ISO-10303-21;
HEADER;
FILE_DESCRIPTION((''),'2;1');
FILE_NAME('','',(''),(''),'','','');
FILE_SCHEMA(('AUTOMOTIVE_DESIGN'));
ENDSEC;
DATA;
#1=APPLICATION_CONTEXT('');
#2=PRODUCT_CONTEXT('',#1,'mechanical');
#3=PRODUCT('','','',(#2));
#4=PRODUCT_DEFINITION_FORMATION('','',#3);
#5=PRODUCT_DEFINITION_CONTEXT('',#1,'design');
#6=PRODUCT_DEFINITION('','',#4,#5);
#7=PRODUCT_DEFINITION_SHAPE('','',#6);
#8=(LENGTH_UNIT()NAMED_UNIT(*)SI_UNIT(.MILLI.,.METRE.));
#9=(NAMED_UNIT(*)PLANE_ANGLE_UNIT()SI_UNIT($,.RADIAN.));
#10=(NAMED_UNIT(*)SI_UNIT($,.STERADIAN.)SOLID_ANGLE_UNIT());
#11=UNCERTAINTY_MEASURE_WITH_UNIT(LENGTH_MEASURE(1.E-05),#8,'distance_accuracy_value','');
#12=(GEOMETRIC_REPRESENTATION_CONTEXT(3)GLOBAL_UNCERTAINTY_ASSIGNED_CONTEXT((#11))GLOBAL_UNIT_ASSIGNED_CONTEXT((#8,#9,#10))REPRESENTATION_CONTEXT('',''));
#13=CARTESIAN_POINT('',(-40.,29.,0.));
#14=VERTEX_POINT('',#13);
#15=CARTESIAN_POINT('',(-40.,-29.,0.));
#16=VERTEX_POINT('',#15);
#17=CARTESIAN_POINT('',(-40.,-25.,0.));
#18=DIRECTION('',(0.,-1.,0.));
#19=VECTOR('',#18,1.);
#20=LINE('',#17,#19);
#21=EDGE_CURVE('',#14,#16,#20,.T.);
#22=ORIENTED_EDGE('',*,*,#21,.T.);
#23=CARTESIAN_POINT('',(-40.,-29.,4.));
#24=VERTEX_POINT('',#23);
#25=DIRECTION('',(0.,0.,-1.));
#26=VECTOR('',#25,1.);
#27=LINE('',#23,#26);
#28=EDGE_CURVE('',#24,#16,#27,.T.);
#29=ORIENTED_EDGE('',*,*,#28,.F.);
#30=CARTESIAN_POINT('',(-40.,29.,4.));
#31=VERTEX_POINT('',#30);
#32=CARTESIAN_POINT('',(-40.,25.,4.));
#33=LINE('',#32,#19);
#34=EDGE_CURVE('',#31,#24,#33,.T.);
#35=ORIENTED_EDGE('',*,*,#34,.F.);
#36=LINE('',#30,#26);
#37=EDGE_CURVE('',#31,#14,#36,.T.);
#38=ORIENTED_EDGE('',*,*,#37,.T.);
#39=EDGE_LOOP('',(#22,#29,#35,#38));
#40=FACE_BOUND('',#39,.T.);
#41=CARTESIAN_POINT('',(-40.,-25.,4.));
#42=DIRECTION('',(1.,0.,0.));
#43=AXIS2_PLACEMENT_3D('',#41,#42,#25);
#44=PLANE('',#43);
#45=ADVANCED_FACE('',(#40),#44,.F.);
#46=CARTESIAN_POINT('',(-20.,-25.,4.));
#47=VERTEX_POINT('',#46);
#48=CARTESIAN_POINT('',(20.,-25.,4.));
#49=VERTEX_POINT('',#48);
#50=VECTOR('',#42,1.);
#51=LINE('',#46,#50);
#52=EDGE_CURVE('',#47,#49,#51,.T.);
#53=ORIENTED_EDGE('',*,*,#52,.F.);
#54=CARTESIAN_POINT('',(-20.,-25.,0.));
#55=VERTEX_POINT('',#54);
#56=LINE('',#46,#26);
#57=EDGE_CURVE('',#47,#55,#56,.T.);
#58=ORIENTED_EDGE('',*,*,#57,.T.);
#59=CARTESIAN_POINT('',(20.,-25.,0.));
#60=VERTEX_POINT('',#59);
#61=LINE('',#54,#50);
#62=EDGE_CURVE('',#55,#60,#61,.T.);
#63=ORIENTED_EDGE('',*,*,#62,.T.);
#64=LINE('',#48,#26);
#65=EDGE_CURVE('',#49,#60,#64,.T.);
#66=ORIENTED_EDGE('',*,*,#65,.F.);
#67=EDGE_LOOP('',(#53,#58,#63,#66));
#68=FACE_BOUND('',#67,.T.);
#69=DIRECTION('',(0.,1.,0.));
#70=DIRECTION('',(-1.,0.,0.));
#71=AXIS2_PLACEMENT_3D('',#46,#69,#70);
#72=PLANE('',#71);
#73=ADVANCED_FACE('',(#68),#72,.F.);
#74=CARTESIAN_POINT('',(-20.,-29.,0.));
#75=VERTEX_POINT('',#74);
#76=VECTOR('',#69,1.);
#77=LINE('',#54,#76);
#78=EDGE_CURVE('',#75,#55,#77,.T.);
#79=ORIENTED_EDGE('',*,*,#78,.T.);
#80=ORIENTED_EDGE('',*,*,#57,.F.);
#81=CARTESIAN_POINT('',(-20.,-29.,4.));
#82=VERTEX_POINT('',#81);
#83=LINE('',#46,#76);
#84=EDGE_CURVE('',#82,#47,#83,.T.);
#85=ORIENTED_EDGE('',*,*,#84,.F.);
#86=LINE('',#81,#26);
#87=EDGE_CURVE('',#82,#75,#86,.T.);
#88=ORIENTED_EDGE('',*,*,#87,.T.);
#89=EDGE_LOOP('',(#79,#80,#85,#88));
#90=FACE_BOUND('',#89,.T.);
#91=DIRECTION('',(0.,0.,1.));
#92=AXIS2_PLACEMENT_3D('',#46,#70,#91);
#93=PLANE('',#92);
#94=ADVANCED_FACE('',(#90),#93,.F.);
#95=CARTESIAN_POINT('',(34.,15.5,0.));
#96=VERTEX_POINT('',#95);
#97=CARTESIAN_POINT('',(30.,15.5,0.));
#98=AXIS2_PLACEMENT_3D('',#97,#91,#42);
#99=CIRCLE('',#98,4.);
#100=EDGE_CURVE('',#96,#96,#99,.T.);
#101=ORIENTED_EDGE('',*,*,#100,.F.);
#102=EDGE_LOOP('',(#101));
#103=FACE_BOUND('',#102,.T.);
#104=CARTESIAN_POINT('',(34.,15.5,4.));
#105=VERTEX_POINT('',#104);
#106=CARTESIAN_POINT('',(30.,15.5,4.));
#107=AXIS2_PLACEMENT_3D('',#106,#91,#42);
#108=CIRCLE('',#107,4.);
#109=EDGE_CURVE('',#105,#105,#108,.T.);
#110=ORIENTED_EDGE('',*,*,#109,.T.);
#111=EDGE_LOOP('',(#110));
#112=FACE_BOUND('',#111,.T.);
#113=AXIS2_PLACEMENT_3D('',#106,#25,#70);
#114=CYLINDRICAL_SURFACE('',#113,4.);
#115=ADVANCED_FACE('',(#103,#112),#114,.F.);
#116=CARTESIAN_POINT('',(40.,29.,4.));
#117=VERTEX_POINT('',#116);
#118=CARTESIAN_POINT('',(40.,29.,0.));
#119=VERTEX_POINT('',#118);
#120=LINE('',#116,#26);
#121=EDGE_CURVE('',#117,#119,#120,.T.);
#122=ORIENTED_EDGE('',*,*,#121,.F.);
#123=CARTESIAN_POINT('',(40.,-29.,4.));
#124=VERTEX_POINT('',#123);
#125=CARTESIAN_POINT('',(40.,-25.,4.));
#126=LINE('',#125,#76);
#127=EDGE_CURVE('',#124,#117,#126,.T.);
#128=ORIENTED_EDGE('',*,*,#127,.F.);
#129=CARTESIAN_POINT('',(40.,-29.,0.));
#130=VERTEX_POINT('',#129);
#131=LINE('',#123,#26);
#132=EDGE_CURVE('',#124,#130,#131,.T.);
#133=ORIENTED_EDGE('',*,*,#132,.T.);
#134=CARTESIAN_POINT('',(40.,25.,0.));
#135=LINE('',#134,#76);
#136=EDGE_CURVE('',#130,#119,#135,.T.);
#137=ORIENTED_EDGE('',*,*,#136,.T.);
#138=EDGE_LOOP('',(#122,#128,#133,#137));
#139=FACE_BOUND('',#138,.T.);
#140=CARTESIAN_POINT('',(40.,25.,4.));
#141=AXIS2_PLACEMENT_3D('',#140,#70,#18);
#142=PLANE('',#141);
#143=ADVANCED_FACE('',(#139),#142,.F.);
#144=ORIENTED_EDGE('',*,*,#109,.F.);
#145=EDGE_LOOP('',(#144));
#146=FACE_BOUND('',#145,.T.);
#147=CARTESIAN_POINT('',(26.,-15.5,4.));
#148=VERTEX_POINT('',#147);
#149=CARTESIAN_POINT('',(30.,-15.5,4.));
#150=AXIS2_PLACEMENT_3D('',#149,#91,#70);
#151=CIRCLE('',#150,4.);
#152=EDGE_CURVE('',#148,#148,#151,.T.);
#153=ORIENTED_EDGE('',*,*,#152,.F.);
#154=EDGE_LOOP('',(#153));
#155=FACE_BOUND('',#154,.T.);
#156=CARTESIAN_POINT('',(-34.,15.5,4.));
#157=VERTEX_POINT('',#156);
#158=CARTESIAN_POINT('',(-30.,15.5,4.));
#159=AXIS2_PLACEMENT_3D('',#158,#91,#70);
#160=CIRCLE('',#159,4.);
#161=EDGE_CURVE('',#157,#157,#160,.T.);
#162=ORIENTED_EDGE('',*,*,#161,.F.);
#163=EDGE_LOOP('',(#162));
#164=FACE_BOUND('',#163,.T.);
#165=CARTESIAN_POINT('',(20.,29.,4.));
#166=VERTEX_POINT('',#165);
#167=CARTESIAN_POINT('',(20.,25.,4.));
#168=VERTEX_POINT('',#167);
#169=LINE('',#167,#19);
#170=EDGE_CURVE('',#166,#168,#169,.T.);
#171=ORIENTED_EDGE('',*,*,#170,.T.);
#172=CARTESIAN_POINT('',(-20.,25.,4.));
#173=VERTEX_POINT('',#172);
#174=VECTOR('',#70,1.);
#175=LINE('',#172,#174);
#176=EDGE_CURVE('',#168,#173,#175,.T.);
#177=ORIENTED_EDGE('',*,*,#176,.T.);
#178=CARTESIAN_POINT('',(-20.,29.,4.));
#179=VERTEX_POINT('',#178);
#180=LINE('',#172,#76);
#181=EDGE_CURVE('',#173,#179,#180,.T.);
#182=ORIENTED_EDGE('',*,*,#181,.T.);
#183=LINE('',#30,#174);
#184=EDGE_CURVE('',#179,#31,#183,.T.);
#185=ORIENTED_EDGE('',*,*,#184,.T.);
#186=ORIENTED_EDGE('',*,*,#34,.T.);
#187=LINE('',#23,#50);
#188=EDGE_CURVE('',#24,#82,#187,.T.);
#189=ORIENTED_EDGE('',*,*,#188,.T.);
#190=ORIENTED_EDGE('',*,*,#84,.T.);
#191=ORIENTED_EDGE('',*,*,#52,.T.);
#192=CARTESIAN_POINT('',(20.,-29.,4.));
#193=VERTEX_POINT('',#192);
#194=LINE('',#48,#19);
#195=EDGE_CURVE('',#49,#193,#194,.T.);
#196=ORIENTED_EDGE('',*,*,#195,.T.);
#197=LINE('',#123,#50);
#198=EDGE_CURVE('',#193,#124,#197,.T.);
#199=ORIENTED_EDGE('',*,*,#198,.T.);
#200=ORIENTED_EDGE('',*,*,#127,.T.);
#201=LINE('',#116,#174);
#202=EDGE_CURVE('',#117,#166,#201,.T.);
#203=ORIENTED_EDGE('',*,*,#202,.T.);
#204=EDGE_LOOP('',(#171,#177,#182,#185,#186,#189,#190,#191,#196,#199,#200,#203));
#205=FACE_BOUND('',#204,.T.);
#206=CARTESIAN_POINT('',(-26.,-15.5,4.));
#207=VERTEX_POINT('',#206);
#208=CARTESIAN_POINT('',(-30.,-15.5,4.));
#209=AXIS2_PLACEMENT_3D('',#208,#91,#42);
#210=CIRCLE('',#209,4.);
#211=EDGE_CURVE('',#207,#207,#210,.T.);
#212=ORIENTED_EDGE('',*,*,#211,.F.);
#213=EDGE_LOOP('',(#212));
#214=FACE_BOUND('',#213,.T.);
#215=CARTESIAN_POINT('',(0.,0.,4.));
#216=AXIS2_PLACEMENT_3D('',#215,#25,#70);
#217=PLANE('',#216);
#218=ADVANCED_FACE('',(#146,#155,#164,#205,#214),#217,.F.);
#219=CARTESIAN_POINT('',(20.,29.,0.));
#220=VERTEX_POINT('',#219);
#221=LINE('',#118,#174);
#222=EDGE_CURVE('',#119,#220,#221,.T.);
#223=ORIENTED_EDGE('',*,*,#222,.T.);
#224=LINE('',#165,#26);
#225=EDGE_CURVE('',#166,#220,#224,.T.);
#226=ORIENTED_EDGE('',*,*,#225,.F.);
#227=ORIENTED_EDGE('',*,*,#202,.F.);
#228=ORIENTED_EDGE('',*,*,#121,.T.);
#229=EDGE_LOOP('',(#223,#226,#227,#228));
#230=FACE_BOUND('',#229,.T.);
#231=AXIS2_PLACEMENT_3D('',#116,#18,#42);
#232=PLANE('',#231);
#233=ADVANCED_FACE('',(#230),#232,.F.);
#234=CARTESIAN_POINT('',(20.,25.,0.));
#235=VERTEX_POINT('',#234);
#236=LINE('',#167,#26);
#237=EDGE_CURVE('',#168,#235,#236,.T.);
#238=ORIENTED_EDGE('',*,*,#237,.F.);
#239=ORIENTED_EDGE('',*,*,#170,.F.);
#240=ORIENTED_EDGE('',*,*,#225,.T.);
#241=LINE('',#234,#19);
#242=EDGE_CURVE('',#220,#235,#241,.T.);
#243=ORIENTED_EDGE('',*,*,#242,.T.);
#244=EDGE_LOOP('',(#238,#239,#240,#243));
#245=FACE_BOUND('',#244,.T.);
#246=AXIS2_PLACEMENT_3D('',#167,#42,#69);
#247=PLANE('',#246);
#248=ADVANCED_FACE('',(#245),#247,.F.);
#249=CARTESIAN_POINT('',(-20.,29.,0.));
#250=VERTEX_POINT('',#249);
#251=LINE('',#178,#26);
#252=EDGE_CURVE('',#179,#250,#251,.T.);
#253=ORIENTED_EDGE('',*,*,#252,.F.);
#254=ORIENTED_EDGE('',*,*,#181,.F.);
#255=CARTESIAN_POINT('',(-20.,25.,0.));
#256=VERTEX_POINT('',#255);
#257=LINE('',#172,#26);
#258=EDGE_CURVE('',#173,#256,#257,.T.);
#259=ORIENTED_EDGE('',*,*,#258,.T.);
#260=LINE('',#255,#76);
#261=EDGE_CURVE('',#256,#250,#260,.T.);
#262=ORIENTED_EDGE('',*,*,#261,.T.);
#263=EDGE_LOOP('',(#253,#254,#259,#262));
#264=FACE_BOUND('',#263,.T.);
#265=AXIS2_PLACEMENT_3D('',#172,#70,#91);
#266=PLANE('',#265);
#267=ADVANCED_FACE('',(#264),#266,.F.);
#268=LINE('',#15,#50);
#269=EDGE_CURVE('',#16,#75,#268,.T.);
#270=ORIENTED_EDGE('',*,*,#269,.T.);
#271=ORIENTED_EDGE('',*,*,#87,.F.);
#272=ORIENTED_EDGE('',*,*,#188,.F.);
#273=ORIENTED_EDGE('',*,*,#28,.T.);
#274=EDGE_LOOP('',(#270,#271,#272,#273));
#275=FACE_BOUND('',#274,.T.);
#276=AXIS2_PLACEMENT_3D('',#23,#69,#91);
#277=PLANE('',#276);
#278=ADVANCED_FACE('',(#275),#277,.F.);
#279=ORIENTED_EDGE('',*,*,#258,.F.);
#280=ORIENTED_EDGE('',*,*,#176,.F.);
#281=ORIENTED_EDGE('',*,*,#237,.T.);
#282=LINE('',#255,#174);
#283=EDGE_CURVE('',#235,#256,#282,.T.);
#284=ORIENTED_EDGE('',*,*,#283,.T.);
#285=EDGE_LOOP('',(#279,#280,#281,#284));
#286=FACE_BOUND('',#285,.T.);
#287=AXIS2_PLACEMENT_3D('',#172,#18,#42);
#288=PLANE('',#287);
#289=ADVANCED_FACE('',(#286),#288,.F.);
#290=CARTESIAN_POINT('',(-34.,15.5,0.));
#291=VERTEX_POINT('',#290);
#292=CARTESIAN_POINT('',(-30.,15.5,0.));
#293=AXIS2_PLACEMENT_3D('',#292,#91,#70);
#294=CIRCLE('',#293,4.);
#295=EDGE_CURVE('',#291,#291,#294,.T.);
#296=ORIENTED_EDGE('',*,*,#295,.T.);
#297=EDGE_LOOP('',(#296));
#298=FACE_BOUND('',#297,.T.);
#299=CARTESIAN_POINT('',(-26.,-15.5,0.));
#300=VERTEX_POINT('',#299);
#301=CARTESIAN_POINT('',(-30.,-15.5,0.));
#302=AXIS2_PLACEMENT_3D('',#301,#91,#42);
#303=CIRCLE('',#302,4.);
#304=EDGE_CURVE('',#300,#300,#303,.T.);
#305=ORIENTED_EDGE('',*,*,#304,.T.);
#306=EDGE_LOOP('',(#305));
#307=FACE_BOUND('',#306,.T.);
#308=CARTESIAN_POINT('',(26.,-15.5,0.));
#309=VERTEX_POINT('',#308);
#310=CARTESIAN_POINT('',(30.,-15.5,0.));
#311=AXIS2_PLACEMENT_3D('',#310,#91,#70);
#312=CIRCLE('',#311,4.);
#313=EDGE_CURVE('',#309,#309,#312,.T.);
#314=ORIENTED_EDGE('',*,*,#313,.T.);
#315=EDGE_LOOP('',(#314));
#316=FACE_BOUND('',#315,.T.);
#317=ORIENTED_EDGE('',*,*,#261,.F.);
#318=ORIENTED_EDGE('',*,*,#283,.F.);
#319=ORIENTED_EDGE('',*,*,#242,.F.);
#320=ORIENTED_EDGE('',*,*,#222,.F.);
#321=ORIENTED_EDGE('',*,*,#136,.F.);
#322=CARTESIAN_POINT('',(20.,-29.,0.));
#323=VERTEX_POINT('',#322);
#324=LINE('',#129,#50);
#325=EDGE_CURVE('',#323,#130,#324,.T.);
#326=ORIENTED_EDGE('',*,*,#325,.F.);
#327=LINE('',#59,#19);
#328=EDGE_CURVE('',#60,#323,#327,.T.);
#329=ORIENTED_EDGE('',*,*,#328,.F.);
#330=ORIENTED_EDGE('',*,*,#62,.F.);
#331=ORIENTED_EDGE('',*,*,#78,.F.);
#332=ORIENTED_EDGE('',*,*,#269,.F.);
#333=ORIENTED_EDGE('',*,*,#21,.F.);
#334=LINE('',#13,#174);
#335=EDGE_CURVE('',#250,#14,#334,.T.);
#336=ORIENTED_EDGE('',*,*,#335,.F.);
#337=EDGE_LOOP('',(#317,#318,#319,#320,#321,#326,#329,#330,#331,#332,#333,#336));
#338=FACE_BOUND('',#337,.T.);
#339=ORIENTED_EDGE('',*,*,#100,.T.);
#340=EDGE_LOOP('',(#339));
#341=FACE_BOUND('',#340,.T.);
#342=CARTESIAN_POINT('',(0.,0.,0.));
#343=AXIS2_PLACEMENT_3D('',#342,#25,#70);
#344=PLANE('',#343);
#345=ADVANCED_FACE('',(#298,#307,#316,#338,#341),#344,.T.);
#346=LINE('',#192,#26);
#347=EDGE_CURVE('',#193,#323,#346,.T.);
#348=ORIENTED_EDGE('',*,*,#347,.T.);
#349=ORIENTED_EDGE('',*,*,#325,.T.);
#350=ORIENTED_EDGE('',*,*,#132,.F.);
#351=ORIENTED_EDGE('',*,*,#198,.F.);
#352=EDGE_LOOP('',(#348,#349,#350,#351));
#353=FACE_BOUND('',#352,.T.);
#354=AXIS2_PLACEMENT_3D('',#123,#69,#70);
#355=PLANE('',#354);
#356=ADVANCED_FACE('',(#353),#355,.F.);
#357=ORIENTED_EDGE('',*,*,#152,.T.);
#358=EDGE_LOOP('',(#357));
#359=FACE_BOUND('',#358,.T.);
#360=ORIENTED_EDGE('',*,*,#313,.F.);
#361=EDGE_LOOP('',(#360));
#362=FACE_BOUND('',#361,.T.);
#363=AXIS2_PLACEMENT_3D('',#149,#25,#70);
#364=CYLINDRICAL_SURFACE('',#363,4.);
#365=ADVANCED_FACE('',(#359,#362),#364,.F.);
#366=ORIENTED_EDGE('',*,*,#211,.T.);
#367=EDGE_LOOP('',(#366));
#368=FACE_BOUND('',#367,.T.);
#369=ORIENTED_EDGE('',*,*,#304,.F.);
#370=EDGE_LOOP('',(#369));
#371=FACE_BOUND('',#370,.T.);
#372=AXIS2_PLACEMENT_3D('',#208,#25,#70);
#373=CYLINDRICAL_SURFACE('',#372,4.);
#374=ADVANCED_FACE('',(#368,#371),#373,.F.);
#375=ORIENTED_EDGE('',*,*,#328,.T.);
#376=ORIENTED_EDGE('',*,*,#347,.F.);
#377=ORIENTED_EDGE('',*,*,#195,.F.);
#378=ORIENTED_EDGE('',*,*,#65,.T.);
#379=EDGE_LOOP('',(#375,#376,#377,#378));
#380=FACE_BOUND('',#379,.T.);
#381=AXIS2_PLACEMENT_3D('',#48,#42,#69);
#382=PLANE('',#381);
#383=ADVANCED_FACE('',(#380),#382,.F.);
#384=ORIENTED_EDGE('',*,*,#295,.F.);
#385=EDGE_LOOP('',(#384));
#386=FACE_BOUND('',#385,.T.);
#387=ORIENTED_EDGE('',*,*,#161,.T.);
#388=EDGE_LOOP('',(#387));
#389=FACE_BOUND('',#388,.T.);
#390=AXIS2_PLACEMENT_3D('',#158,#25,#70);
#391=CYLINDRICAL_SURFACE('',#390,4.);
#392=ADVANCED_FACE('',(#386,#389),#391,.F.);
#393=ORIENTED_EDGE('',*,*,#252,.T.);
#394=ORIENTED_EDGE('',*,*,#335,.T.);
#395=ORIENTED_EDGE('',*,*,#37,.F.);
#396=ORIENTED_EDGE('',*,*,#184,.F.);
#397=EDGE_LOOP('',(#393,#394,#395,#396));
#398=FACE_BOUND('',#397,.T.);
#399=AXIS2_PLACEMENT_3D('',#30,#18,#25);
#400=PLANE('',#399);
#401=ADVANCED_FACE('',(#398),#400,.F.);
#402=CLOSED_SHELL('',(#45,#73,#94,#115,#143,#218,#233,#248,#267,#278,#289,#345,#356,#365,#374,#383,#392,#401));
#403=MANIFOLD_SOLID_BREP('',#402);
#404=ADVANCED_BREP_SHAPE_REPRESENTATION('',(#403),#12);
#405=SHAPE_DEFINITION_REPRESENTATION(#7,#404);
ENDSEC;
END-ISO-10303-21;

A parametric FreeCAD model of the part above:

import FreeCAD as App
import Part
import Sketcher
from FreeCAD import Vector
Q = App.Units.Quantity


def add_polygon(sketch, points):
    """Adds a closed chain of lines whose ends are joined by coincident constraints."""
    first, n = sketch.GeometryCount, len(points)
    for a, b in zip(points, points[1:] + points[:1]):
        sketch.addGeometry(Part.LineSegment(App.Vector(*a, 0), App.Vector(*b, 0)), False)
    for i in range(n):
        sketch.addConstraint(Sketcher.Constraint("Coincident", first + i, 2, first + (i + 1) % n, 1))

doc = App.newDocument("Part")
params = doc.addObject("Spreadsheet::Sheet", "Params")
for row, (alias, value) in enumerate([
    ("sketch1_diameter", "8 mm"),
    ("sketch1_width", "40 mm"),
    ("sketch1_width2", "20 mm"),
    ("sketch1_height", "4 mm"),
    ("sketch1_height2", "58 mm"),
    ("pad1_length", "4 mm"),
], start=1):
    params.set(f"A{row}", alias)
    params.set(f"B{row}", "=" + value)
    params.setAlias(f"B{row}", alias)

body = doc.addObject("PartDesign::Body", "Body")

# Sketch on XY plane
sketch1 = doc.addObject("Sketcher::SketchObject", "Sketch")
body.addObject(sketch1)
sketch1.AttachmentSupport = (doc.XY_Plane, [""])
sketch1.MapMode = "FlatFace"
add_polygon(sketch1, [(20, 25), (-20, 25), (-20, 29), (-40, 29), (-40, -29), (-20, -29), (-20, -25), (20, -25), (20, -29), (40, -29), (40, 29), (20, 29)])  # lines 0-11
sketch1.addGeometry(Part.Circle(Vector(30, -15.5, 0), Vector(0, 0, 1), 4), False)  # 12
sketch1.addGeometry(Part.Circle(Vector(-30, -15.5, 0), Vector(0, 0, 1), 4), False)  # 13
sketch1.addGeometry(Part.Circle(Vector(30, 15.5, 0), Vector(0, 0, 1), 4), False)  # 14
sketch1.addGeometry(Part.Circle(Vector(-30, 15.5, 0), Vector(0, 0, 1), 4), False)  # 15
sketch1.addConstraint([
    Sketcher.Constraint("Horizontal", 0),
    Sketcher.Constraint("Vertical", 1),
    Sketcher.Constraint("Horizontal", 2),
    Sketcher.Constraint("Vertical", 3),
    Sketcher.Constraint("Horizontal", 4),
    Sketcher.Constraint("Vertical", 5),
    Sketcher.Constraint("Horizontal", 6),
    Sketcher.Constraint("Vertical", 7),
    Sketcher.Constraint("Horizontal", 8),
    Sketcher.Constraint("Vertical", 9),
    Sketcher.Constraint("Horizontal", 10),
    Sketcher.Constraint("Vertical", 11),
    Sketcher.Constraint("Equal", 12, 13),
    Sketcher.Constraint("Equal", 13, 14),
    Sketcher.Constraint("Equal", 14, 15),
    Sketcher.Constraint("Symmetric", 13, 3, 14, 3, -1, 1),
    Sketcher.Constraint("Symmetric", 12, 3, 15, 3, -1, 1),
    Sketcher.Constraint("Symmetric", 0, 2, 6, 2, -1, 1),
    Sketcher.Constraint("Symmetric", 2, 2, 8, 2, -1, 1),
    Sketcher.Constraint("Symmetric", 4, 2, 10, 2, -1, 1),
    Sketcher.Constraint("Symmetric", 12, 3, 13, 3, -2),
    Sketcher.Constraint("Symmetric", 4, 2, 7, 2, -2),
    Sketcher.Constraint("Diameter", 12, Q("8 mm")),
    Sketcher.Constraint("DistanceX", 0, 2, 0, 1, Q("40 mm")),
    Sketcher.Constraint("DistanceX", 2, 2, 2, 1, Q("20 mm")),
    Sketcher.Constraint("DistanceY", 1, 1, 1, 2, Q("4 mm")),
    Sketcher.Constraint("DistanceY", 3, 2, 3, 1, Q("58 mm")),
    Sketcher.Constraint("DistanceX", -1, 1, 12, 3, Q("30 mm")),
    Sketcher.Constraint("DistanceY", 12, 3, 14, 3, Q("31 mm")),
])
sketch1.setExpression("Constraints[34]", "Params.sketch1_diameter")
sketch1.setExpression("Constraints[35]", "Params.sketch1_width")
sketch1.setExpression("Constraints[36]", "Params.sketch1_width2")
sketch1.setExpression("Constraints[37]", "Params.sketch1_height")
sketch1.setExpression("Constraints[38]", "Params.sketch1_height2")
pad1 = doc.addObject("PartDesign::Pad", "Pad")
body.addObject(pad1)
pad1.Profile = sketch1
pad1.setExpression("Length", "Params.pad1_length")

doc.recompute()
